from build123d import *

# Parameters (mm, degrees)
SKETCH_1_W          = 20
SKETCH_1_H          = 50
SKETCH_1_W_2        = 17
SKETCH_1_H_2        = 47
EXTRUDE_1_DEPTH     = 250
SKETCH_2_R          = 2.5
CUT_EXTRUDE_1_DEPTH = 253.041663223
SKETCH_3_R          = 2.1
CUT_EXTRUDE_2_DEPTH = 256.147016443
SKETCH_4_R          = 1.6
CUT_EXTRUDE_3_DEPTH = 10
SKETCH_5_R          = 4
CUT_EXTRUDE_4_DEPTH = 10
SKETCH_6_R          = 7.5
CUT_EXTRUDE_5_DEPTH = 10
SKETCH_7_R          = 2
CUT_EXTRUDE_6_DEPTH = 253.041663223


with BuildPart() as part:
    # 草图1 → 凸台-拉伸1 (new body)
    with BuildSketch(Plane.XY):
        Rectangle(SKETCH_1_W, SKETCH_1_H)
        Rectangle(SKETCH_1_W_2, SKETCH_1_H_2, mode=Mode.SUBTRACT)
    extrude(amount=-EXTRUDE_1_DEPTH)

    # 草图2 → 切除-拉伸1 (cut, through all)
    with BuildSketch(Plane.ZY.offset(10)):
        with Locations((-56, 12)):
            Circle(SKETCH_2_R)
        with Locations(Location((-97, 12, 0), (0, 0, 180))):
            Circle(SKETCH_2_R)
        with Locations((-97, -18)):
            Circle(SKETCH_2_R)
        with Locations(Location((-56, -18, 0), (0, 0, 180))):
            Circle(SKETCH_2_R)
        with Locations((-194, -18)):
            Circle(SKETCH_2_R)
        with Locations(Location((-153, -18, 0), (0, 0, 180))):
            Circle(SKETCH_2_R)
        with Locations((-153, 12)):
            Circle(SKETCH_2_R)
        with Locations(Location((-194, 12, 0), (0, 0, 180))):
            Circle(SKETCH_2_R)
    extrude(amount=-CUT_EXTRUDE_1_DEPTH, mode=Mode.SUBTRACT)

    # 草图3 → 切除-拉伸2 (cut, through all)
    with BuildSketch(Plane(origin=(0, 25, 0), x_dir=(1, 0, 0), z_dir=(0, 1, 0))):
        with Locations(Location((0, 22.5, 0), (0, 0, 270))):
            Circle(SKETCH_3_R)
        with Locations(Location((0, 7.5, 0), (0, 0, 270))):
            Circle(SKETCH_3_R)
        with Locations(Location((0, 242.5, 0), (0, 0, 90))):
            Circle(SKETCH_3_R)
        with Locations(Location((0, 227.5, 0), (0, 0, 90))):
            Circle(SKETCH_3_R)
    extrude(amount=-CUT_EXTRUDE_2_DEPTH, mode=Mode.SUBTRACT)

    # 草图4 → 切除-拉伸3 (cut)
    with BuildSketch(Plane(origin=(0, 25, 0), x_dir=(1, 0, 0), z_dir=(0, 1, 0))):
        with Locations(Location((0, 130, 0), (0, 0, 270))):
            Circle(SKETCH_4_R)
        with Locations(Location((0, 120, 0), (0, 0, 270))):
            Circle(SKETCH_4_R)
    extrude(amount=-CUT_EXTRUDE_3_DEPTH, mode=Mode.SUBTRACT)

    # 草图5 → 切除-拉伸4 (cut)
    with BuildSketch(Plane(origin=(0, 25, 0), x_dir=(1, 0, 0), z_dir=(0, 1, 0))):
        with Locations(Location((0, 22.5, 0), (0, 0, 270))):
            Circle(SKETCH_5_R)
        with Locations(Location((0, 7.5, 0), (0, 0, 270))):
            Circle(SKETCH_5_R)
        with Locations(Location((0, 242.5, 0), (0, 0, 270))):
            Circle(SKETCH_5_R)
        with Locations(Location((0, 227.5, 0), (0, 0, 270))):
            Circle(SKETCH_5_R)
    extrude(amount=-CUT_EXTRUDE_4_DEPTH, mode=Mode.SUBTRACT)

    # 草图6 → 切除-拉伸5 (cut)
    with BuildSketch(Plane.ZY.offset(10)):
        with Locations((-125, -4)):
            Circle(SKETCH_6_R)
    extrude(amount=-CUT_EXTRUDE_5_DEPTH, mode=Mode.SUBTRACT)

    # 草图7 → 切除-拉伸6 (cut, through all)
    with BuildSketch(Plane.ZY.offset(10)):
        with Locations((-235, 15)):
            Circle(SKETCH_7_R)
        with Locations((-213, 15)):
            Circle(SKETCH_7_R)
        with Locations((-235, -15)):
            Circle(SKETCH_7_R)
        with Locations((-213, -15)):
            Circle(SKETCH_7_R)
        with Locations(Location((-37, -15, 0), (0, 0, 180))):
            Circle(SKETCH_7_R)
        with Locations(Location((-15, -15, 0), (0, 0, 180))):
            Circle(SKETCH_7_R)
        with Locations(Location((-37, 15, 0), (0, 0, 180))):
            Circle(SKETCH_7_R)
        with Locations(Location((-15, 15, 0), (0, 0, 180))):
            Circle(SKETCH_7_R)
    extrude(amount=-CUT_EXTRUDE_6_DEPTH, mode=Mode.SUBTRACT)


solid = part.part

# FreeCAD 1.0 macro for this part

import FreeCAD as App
import Part
import Sketcher

doc = App.newDocument("Part")
body = doc.addObject("PartDesign::Body", "Body")

sketch1 = body.newObject("Sketcher::SketchObject", "Sketch")
sketch1.AttachmentSupport = (doc.getObject("XY_Plane"), [""])
sketch1.MapMode = "FlatFace"
sketch1.addGeometry(Part.LineSegment(App.Vector(-10, 25, 0), App.Vector(-10, -25, 0)), False)
sketch1.addGeometry(Part.LineSegment(App.Vector(-10, -25, 0), App.Vector(10, -25, 0)), False)
sketch1.addGeometry(Part.LineSegment(App.Vector(10, -25, 0), App.Vector(10, 25, 0)), False)
sketch1.addGeometry(Part.LineSegment(App.Vector(10, 25, 0), App.Vector(-10, 25, 0)), False)
sketch1.addGeometry(Part.LineSegment(App.Vector(8.5, -23.5, 0), App.Vector(-8.5, -23.5, 0)), False)
sketch1.addGeometry(Part.LineSegment(App.Vector(-8.5, -23.5, 0), App.Vector(-8.5, 23.5, 0)), False)
sketch1.addGeometry(Part.LineSegment(App.Vector(-8.5, 23.5, 0), App.Vector(8.5, 23.5, 0)), False)
sketch1.addGeometry(Part.LineSegment(App.Vector(8.5, 23.5, 0), App.Vector(8.5, -23.5, 0)), False)
sketch1.addConstraint(Sketcher.Constraint("Coincident", 0, 2, 1, 1))
sketch1.addConstraint(Sketcher.Constraint("Coincident", 1, 2, 2, 1))
sketch1.addConstraint(Sketcher.Constraint("Coincident", 2, 2, 3, 1))
sketch1.addConstraint(Sketcher.Constraint("Coincident", 3, 2, 0, 1))
sketch1.addConstraint(Sketcher.Constraint("Coincident", 4, 2, 5, 1))
sketch1.addConstraint(Sketcher.Constraint("Coincident", 5, 2, 6, 1))
sketch1.addConstraint(Sketcher.Constraint("Coincident", 6, 2, 7, 1))
sketch1.addConstraint(Sketcher.Constraint("Coincident", 7, 2, 4, 1))
sketch1.addConstraint(Sketcher.Constraint("Vertical", 0))
sketch1.addConstraint(Sketcher.Constraint("Horizontal", 1))
sketch1.addConstraint(Sketcher.Constraint("Vertical", 2))
sketch1.addConstraint(Sketcher.Constraint("Horizontal", 3))
sketch1.addConstraint(Sketcher.Constraint("Horizontal", 4))
sketch1.addConstraint(Sketcher.Constraint("Vertical", 5))
sketch1.addConstraint(Sketcher.Constraint("Horizontal", 6))
sketch1.addConstraint(Sketcher.Constraint("Vertical", 7))
sketch1.addConstraint(Sketcher.Constraint("Symmetric", 0, 2, 2, 2, -1, 1))
sketch1.addConstraint(Sketcher.Constraint("Symmetric", 4, 2, 6, 2, -1, 1))
sketch1.addConstraint(Sketcher.Constraint("DistanceX", 1, 1, 1, 2, 20.0))
sketch1.addConstraint(Sketcher.Constraint("DistanceX", 4, 2, 4, 1, 17.0))
sketch1.addConstraint(Sketcher.Constraint("DistanceY", 0, 2, 0, 1, 50.0))
sketch1.addConstraint(Sketcher.Constraint("DistanceY", 5, 1, 5, 2, 47.0))
pad1 = body.newObject("PartDesign::Pad", "Pad")
pad1.Profile = sketch1
pad1.Length = 250
pad1.Reversed = True

sketch2 = body.newObject("Sketcher::SketchObject", "Sketch001")
sketch2.AttachmentSupport = (doc.getObject("YZ_Plane"), [""])
sketch2.MapMode = "FlatFace"
sketch2.AttachmentOffset = App.Placement(App.Vector(0, 0, -10), App.Rotation())
sketch2.addGeometry(Part.Circle(App.Vector(12, -56, 0), App.Vector(0, 0, 1), 2.5), False)
sketch2.addGeometry(Part.Circle(App.Vector(12, -97, 0), App.Vector(0, 0, 1), 2.5), False)
sketch2.addGeometry(Part.Circle(App.Vector(-18, -97, 0), App.Vector(0, 0, 1), 2.5), False)
sketch2.addGeometry(Part.Circle(App.Vector(-18, -56, 0), App.Vector(0, 0, 1), 2.5), False)
sketch2.addGeometry(Part.Circle(App.Vector(-18, -194, 0), App.Vector(0, 0, 1), 2.5), False)
sketch2.addGeometry(Part.Circle(App.Vector(-18, -153, 0), App.Vector(0, 0, 1), 2.5), False)
sketch2.addGeometry(Part.Circle(App.Vector(12, -153, 0), App.Vector(0, 0, 1), 2.5), False)
sketch2.addGeometry(Part.Circle(App.Vector(12, -194, 0), App.Vector(0, 0, 1), 2.5), False)
sketch2.addConstraint(Sketcher.Constraint("Equal", 0, 1))
sketch2.addConstraint(Sketcher.Constraint("Equal", 1, 2))
sketch2.addConstraint(Sketcher.Constraint("Equal", 2, 3))
sketch2.addConstraint(Sketcher.Constraint("Equal", 3, 4))
sketch2.addConstraint(Sketcher.Constraint("Equal", 4, 5))
sketch2.addConstraint(Sketcher.Constraint("Equal", 5, 6))
sketch2.addConstraint(Sketcher.Constraint("Equal", 6, 7))
sketch2.addConstraint(Sketcher.Constraint("Horizontal", 1, 3, 2, 3))
sketch2.addConstraint(Sketcher.Constraint("Horizontal", 0, 3, 3, 3))
sketch2.addConstraint(Sketcher.Constraint("Horizontal", 5, 3, 6, 3))
sketch2.addConstraint(Sketcher.Constraint("Horizontal", 4, 3, 7, 3))
sketch2.addConstraint(Sketcher.Constraint("Vertical", 0, 3, 1, 3))
sketch2.addConstraint(Sketcher.Constraint("Vertical", 2, 3, 3, 3))
sketch2.addConstraint(Sketcher.Constraint("Vertical", 3, 3, 4, 3))
sketch2.addConstraint(Sketcher.Constraint("Vertical", 4, 3, 5, 3))
sketch2.addConstraint(Sketcher.Constraint("Vertical", 1, 3, 6, 3))
sketch2.addConstraint(Sketcher.Constraint("Vertical", 6, 3, 7, 3))
sketch2.addConstraint(Sketcher.Constraint("Diameter", 0, 5.0))
sketch2.addConstraint(Sketcher.Constraint("DistanceX", -1, 1, 0, 3, 12.0))
sketch2.addConstraint(Sketcher.Constraint("DistanceY", 0, 3, -1, 1, 56.0))
sketch2.addConstraint(Sketcher.Constraint("DistanceY", 1, 3, -1, 1, 97.0))
sketch2.addConstraint(Sketcher.Constraint("DistanceX", 2, 3, -1, 1, 18.0))
sketch2.addConstraint(Sketcher.Constraint("DistanceY", 4, 3, -1, 1, 194.0))
sketch2.addConstraint(Sketcher.Constraint("DistanceY", 5, 3, -1, 1, 153.0))
pocket1 = body.newObject("PartDesign::Pocket", "Pocket")
pocket1.Profile = sketch2
pocket1.Type = "ThroughAll"
pocket1.Reversed = True

sketch3 = body.newObject("Sketcher::SketchObject", "Sketch002")
sketch3.AttachmentSupport = (doc.getObject("XZ_Plane"), [""])
sketch3.MapMode = "FlatFace"
sketch3.AttachmentOffset = App.Placement(App.Vector(0, 0, -25), App.Rotation())
sketch3.addGeometry(Part.Circle(App.Vector(0, -22.5, 0), App.Vector(0, 0, 1), 2.1), False)
sketch3.addGeometry(Part.Circle(App.Vector(0, -7.5, 0), App.Vector(0, 0, 1), 2.1), False)
sketch3.addGeometry(Part.Circle(App.Vector(0, -242.5, 0), App.Vector(0, 0, 1), 2.1), False)
sketch3.addGeometry(Part.Circle(App.Vector(0, -227.5, 0), App.Vector(0, 0, 1), 2.1), False)
sketch3.addConstraint(Sketcher.Constraint("Equal", 0, 1))
sketch3.addConstraint(Sketcher.Constraint("Equal", 1, 2))
sketch3.addConstraint(Sketcher.Constraint("Equal", 2, 3))
sketch3.addConstraint(Sketcher.Constraint("PointOnObject", 0, 3, -2))
sketch3.addConstraint(Sketcher.Constraint("PointOnObject", 1, 3, -2))
sketch3.addConstraint(Sketcher.Constraint("PointOnObject", 2, 3, -2))
sketch3.addConstraint(Sketcher.Constraint("PointOnObject", 3, 3, -2))
sketch3.addConstraint(Sketcher.Constraint("Diameter", 0, 4.2))
sketch3.addConstraint(Sketcher.Constraint("DistanceY", 0, 3, 1, 3, 15.0))
sketch3.addConstraint(Sketcher.Constraint("DistanceY", 2, 3, 0, 3, 220.0))
sketch3.addConstraint(Sketcher.Constraint("DistanceY", 2, 3, 3, 3, 15.0))
sketch3.addConstraint(Sketcher.Constraint("DistanceY", 0, 3, -1, 1, 22.5))
pocket2 = body.newObject("PartDesign::Pocket", "Pocket001")
pocket2.Profile = sketch3
pocket2.Type = "ThroughAll"
pocket2.Reversed = True

sketch4 = body.newObject("Sketcher::SketchObject", "Sketch003")
sketch4.AttachmentSupport = (doc.getObject("XZ_Plane"), [""])
sketch4.MapMode = "FlatFace"
sketch4.AttachmentOffset = App.Placement(App.Vector(0, 0, -25), App.Rotation())
sketch4.addGeometry(Part.Circle(App.Vector(0, -130, 0), App.Vector(0, 0, 1), 1.6), False)
sketch4.addGeometry(Part.Circle(App.Vector(0, -120, 0), App.Vector(0, 0, 1), 1.6), False)
sketch4.addConstraint(Sketcher.Constraint("Equal", 0, 1))
sketch4.addConstraint(Sketcher.Constraint("PointOnObject", 0, 3, -2))
sketch4.addConstraint(Sketcher.Constraint("PointOnObject", 1, 3, -2))
sketch4.addConstraint(Sketcher.Constraint("Diameter", 0, 3.2))
sketch4.addConstraint(Sketcher.Constraint("DistanceY", 0, 3, -1, 1, 130.0))
sketch4.addConstraint(Sketcher.Constraint("DistanceY", 1, 3, -1, 1, 120.0))
pocket3 = body.newObject("PartDesign::Pocket", "Pocket002")
pocket3.Profile = sketch4
pocket3.Length = 10
pocket3.Reversed = True

sketch5 = body.newObject("Sketcher::SketchObject", "Sketch004")
sketch5.AttachmentSupport = (doc.getObject("XZ_Plane"), [""])
sketch5.MapMode = "FlatFace"
sketch5.AttachmentOffset = App.Placement(App.Vector(0, 0, -25), App.Rotation())
sketch5.addGeometry(Part.Circle(App.Vector(0, -22.5, 0), App.Vector(0, 0, 1), 4), False)
sketch5.addGeometry(Part.Circle(App.Vector(0, -7.5, 0), App.Vector(0, 0, 1), 4), False)
sketch5.addGeometry(Part.Circle(App.Vector(0, -242.5, 0), App.Vector(0, 0, 1), 4), False)
sketch5.addGeometry(Part.Circle(App.Vector(0, -227.5, 0), App.Vector(0, 0, 1), 4), False)
sketch5.addConstraint(Sketcher.Constraint("Equal", 0, 1))
sketch5.addConstraint(Sketcher.Constraint("Equal", 1, 2))
sketch5.addConstraint(Sketcher.Constraint("Equal", 2, 3))
sketch5.addConstraint(Sketcher.Constraint("PointOnObject", 0, 3, -2))
sketch5.addConstraint(Sketcher.Constraint("PointOnObject", 1, 3, -2))
sketch5.addConstraint(Sketcher.Constraint("PointOnObject", 2, 3, -2))
sketch5.addConstraint(Sketcher.Constraint("PointOnObject", 3, 3, -2))
sketch5.addConstraint(Sketcher.Constraint("Diameter", 0, 8.0))
sketch5.addConstraint(Sketcher.Constraint("DistanceY", 0, 3, 1, 3, 15.0))
sketch5.addConstraint(Sketcher.Constraint("DistanceY", 2, 3, 0, 3, 220.0))
sketch5.addConstraint(Sketcher.Constraint("DistanceY", 2, 3, 3, 3, 15.0))
sketch5.addConstraint(Sketcher.Constraint("DistanceY", 0, 3, -1, 1, 22.5))
pocket4 = body.newObject("PartDesign::Pocket", "Pocket003")
pocket4.Profile = sketch5
pocket4.Length = 10
pocket4.Reversed = True

sketch6 = body.newObject("Sketcher::SketchObject", "Sketch005")
sketch6.AttachmentSupport = (doc.getObject("YZ_Plane"), [""])
sketch6.MapMode = "FlatFace"
sketch6.AttachmentOffset = App.Placement(App.Vector(0, 0, -10), App.Rotation())
sketch6.addGeometry(Part.Circle(App.Vector(-4, -125, 0), App.Vector(0, 0, 1), 7.5), False)
sketch6.addConstraint(Sketcher.Constraint("Diameter", 0, 15.0))
sketch6.addConstraint(Sketcher.Constraint("DistanceX", 0, 3, -1, 1, 4.0))
sketch6.addConstraint(Sketcher.Constraint("DistanceY", 0, 3, -1, 1, 125.0))
pocket5 = body.newObject("PartDesign::Pocket", "Pocket004")
pocket5.Profile = sketch6
pocket5.Length = 10
pocket5.Reversed = True

sketch7 = body.newObject("Sketcher::SketchObject", "Sketch006")
sketch7.AttachmentSupport = (doc.getObject("YZ_Plane"), [""])
sketch7.MapMode = "FlatFace"
sketch7.AttachmentOffset = App.Placement(App.Vector(0, 0, -10), App.Rotation())
sketch7.addGeometry(Part.Circle(App.Vector(15, -235, 0), App.Vector(0, 0, 1), 2), False)
sketch7.addGeometry(Part.Circle(App.Vector(15, -213, 0), App.Vector(0, 0, 1), 2), False)
sketch7.addGeometry(Part.Circle(App.Vector(-15, -235, 0), App.Vector(0, 0, 1), 2), False)
sketch7.addGeometry(Part.Circle(App.Vector(-15, -213, 0), App.Vector(0, 0, 1), 2), False)
sketch7.addGeometry(Part.Circle(App.Vector(-15, -37, 0), App.Vector(0, 0, 1), 2), False)
sketch7.addGeometry(Part.Circle(App.Vector(-15, -15, 0), App.Vector(0, 0, 1), 2), False)
sketch7.addGeometry(Part.Circle(App.Vector(15, -37, 0), App.Vector(0, 0, 1), 2), False)
sketch7.addGeometry(Part.Circle(App.Vector(15, -15, 0), App.Vector(0, 0, 1), 2), False)
sketch7.addConstraint(Sketcher.Constraint("Equal", 0, 1))
sketch7.addConstraint(Sketcher.Constraint("Equal", 1, 2))
sketch7.addConstraint(Sketcher.Constraint("Equal", 2, 3))
sketch7.addConstraint(Sketcher.Constraint("Equal", 3, 4))
sketch7.addConstraint(Sketcher.Constraint("Equal", 4, 5))
sketch7.addConstraint(Sketcher.Constraint("Equal", 5, 6))
sketch7.addConstraint(Sketcher.Constraint("Equal", 6, 7))
sketch7.addConstraint(Sketcher.Constraint("Symmetric", 0, 3, 2, 3, -2))
sketch7.addConstraint(Sketcher.Constraint("Symmetric", 1, 3, 3, 3, -2))
sketch7.addConstraint(Sketcher.Constraint("Symmetric", 4, 3, 6, 3, -2))
sketch7.addConstraint(Sketcher.Constraint("Symmetric", 5, 3, 7, 3, -2))
sketch7.addConstraint(Sketcher.Constraint("Vertical", 0, 3, 1, 3))
sketch7.addConstraint(Sketcher.Constraint("Vertical", 3, 3, 4, 3))
sketch7.addConstraint(Sketcher.Constraint("Vertical", 4, 3, 5, 3))
sketch7.addConstraint(Sketcher.Constraint("Diameter", 0, 4.0))
sketch7.addConstraint(Sketcher.Constraint("DistanceX", -1, 1, 0, 3, 15.0))
sketch7.addConstraint(Sketcher.Constraint("DistanceY", 0, 3, -1, 1, 235.0))
sketch7.addConstraint(Sketcher.Constraint("DistanceY", 1, 3, -1, 1, 213.0))
sketch7.addConstraint(Sketcher.Constraint("DistanceY", 4, 3, -1, 1, 37.0))
sketch7.addConstraint(Sketcher.Constraint("DistanceY", 5, 3, -1, 1, 15.0))
pocket6 = body.newObject("PartDesign::Pocket", "Pocket005")
pocket6.Profile = sketch7
pocket6.Type = "ThroughAll"
pocket6.Reversed = True

doc.recompute()
